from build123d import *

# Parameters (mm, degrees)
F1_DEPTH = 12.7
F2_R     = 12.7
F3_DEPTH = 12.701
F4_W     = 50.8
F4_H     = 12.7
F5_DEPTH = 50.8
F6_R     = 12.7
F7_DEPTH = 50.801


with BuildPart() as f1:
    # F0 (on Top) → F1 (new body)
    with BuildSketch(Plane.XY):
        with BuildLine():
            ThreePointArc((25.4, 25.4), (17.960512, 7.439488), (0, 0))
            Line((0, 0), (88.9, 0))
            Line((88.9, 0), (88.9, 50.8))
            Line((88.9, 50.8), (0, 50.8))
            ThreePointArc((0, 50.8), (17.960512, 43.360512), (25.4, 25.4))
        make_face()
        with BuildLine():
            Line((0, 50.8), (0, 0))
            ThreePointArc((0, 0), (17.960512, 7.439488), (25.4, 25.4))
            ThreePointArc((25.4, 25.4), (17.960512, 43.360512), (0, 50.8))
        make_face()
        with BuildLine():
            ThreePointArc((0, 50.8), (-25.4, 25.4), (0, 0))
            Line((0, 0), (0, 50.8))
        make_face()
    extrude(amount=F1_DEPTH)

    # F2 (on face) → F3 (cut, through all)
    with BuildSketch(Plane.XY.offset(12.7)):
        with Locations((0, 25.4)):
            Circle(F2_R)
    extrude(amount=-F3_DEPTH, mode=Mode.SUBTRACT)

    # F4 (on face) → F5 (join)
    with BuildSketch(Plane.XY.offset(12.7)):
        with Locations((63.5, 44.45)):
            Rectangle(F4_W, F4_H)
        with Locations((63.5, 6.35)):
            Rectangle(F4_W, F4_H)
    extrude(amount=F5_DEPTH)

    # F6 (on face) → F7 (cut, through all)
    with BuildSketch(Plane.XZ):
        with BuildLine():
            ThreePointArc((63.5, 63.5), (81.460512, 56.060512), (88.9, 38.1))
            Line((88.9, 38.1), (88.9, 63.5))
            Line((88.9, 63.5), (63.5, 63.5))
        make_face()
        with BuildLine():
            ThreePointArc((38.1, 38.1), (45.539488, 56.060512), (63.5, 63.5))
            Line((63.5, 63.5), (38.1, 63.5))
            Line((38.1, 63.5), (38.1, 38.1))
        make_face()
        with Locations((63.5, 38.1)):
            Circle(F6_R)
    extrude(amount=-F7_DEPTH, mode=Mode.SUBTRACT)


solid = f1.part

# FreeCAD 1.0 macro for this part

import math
import FreeCAD as App
import Part
import Sketcher

V = App.Vector
Q = App.Units.Quantity

doc = App.newDocument("Part")
body = doc.addObject("PartDesign::Body", "Body")

# Sketch on XY plane
sketch1 = body.newObject("Sketcher::SketchObject", "Sketch")
sketch1.AttachmentSupport = (doc.getObject("XY_Plane"), [""])
sketch1.MapMode = "FlatFace"
sketch1.addGeometry([
    Part.LineSegment(V(0, 0, 0), V(89, 0, 0)),
    Part.LineSegment(V(89, 0, 0), V(89, 51, 0)),
    Part.LineSegment(V(89, 51, 0), V(0, 51, 0)),
    Part.ArcOfCircle(Part.Circle(V(0, 25, 0), V(0, 0, 1), 25), math.radians(90), math.radians(270)),
], False)
sketch1.addConstraint([
    Sketcher.Constraint("Coincident", 0, 2, 1, 1),
    Sketcher.Constraint("Coincident", 1, 2, 2, 1),
    Sketcher.Constraint("Tangent", 2, 2, 3, 1),
    Sketcher.Constraint("Tangent", 3, 2, 0, 1),
    Sketcher.Constraint("Horizontal", 0),
    Sketcher.Constraint("Vertical", 1),
    Sketcher.Constraint("Horizontal", 2),
    Sketcher.Constraint("Coincident", 3, 2, -1, 1),
    Sketcher.Constraint("Radius", 3, Q("1 in")),
    Sketcher.Constraint("DistanceX", 0, 1, 0, 2, Q("3.5 in")),
])
pad1 = body.newObject("PartDesign::Pad", "Pad")
pad1.Profile = sketch1
pad1.Length = Q("0.5 in")

# Sketch on XY plane
sketch2 = body.newObject("Sketcher::SketchObject", "Sketch001")
sketch2.AttachmentSupport = (doc.getObject("XY_Plane"), [""])
sketch2.MapMode = "FlatFace"
sketch2.AttachmentOffset = App.Placement(V(0, 0, 0.5 * 25.4), App.Rotation())
sketch2.addGeometry(Part.Circle(V(0, 25, 0), V(0, 0, 1), 13), False)
sketch2.addConstraint([
    Sketcher.Constraint("PointOnObject", 0, 3, -2),
    Sketcher.Constraint("Diameter", 0, Q("1 in")),
    Sketcher.Constraint("DistanceY", -1, 1, 0, 3, Q("1 in")),
])
pocket1 = body.newObject("PartDesign::Pocket", "Pocket")
pocket1.Profile = sketch2
pocket1.Type = "ThroughAll"

# Sketch on XY plane
sketch3 = body.newObject("Sketcher::SketchObject", "Sketch002")
sketch3.AttachmentSupport = (doc.getObject("XY_Plane"), [""])
sketch3.MapMode = "FlatFace"
sketch3.AttachmentOffset = App.Placement(V(0, 0, 0.5 * 25.4), App.Rotation())
sketch3.addGeometry([
    Part.LineSegment(V(38, 51, 0), V(38, 38, 0)),  # 0
    Part.LineSegment(V(38, 38, 0), V(89, 38, 0)),  # 1
    Part.LineSegment(V(89, 38, 0), V(89, 51, 0)),  # 2
    Part.LineSegment(V(89, 51, 0), V(38, 51, 0)),  # 3
    Part.LineSegment(V(38, 13, 0), V(38, 0, 0)),  # 4
    Part.LineSegment(V(38, 0, 0), V(89, 0, 0)),  # 5
    Part.LineSegment(V(89, 0, 0), V(89, 13, 0)),  # 6
    Part.LineSegment(V(89, 13, 0), V(38, 13, 0)),  # 7
], False)
sketch3.addConstraint([
    Sketcher.Constraint("Coincident", 0, 2, 1, 1),
    Sketcher.Constraint("Coincident", 1, 2, 2, 1),
    Sketcher.Constraint("Coincident", 2, 2, 3, 1),
    Sketcher.Constraint("Coincident", 3, 2, 0, 1),
    Sketcher.Constraint("Coincident", 4, 2, 5, 1),
    Sketcher.Constraint("Coincident", 5, 2, 6, 1),
    Sketcher.Constraint("Coincident", 6, 2, 7, 1),
    Sketcher.Constraint("Coincident", 7, 2, 4, 1),
    Sketcher.Constraint("Vertical", 0),
    Sketcher.Constraint("Horizontal", 1),
    Sketcher.Constraint("Vertical", 2),
    Sketcher.Constraint("Horizontal", 3),
    Sketcher.Constraint("Vertical", 4),
    Sketcher.Constraint("Horizontal", 5),
    Sketcher.Constraint("Vertical", 6),
    Sketcher.Constraint("Horizontal", 7),
    Sketcher.Constraint("PointOnObject", 4, 2, -1),
    Sketcher.Constraint("Vertical", 3, 2, 4, 2),
    Sketcher.Constraint("Vertical", 2, 2, 5, 2),
    Sketcher.Constraint("Equal", 2, 4),
    Sketcher.Constraint("DistanceX", 1, 1, 1, 2, Q("2 in")),
    Sketcher.Constraint("DistanceY", 0, 2, 0, 1, Q("0.5 in")),
    Sketcher.Constraint("DistanceY", -1, 1, 2, 2, Q("2 in")),
    Sketcher.Constraint("DistanceX", -1, 1, 0, 2, Q("1.5 in")),
])
pad2 = body.newObject("PartDesign::Pad", "Pad001")
pad2.Profile = sketch3
pad2.Length = Q("2 in")

# Sketch on XZ plane
sketch4 = body.newObject("Sketcher::SketchObject", "Sketch003")
sketch4.AttachmentSupport = (doc.getObject("XZ_Plane"), [""])
sketch4.MapMode = "FlatFace"
sketch4.addGeometry([
    Part.ArcOfCircle(Part.Circle(V(63, 38, 0), V(0, 0, 1), 25), math.radians(0), math.radians(90)),  # 0
    Part.LineSegment(V(89, 38, 0), V(89, 64, 0)),  # 1
    Part.LineSegment(V(89, 64, 0), V(64, 64, 0)),  # 2
    Part.ArcOfCircle(Part.Circle(V(64, 38, 0), V(0, 0, 1), 25), math.radians(90), math.radians(180)),  # 3
    Part.LineSegment(V(64, 64, 0), V(38, 64, 0)),  # 4
    Part.LineSegment(V(38, 64, 0), V(38, 38, 0)),  # 5
    Part.Circle(V(64, 38, 0), V(0, 0, 1), 13),  # 6
], False)
sketch4.addConstraint([
    Sketcher.Constraint("Tangent", 0, 1, 1, 1),
    Sketcher.Constraint("Coincident", 1, 2, 2, 1),
    Sketcher.Constraint("Tangent", 2, 2, 0, 2),
    Sketcher.Constraint("Tangent", 3, 1, 4, 1),
    Sketcher.Constraint("Coincident", 4, 2, 5, 1),
    Sketcher.Constraint("Tangent", 5, 2, 3, 2),
    Sketcher.Constraint("Vertical", 1),
    Sketcher.Constraint("Horizontal", 2),
    Sketcher.Constraint("Horizontal", 4),
    Sketcher.Constraint("Vertical", 5),
    Sketcher.Constraint("Coincident", 3, 3, 0, 3),
    Sketcher.Constraint("Coincident", 6, 3, 0, 3),
    Sketcher.Constraint("Equal", 0, 3),
    Sketcher.Constraint("Diameter", 6, Q("1 in")),
    Sketcher.Constraint("Radius", 0, Q("1 in")),
    Sketcher.Constraint("DistanceX", -1, 1, 0, 3, Q("2.5 in")),
    Sketcher.Constraint("DistanceY", -1, 1, 0, 3, Q("1.5 in")),
])
pocket2 = body.newObject("PartDesign::Pocket", "Pocket001")
pocket2.Profile = sketch4
pocket2.Type = "ThroughAll"

doc.recompute()
